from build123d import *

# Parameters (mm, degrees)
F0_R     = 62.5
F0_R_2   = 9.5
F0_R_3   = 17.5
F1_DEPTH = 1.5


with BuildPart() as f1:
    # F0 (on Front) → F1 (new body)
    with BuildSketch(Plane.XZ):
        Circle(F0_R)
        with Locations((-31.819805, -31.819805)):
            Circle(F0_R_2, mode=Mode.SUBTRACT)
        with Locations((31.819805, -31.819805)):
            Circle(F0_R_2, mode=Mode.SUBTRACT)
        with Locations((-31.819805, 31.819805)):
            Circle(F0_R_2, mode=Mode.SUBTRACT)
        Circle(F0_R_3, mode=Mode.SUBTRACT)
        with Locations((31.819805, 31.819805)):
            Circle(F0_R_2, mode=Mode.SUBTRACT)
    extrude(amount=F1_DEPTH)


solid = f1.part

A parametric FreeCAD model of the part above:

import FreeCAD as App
import Part
import Sketcher

V = App.Vector
Q = App.Units.Quantity

doc = App.newDocument("Part")
body = doc.addObject("PartDesign::Body", "Body")

# Sketch on XZ plane
sketch1 = body.newObject("Sketcher::SketchObject", "Sketch")
sketch1.AttachmentSupport = (doc.getObject("XZ_Plane"), [""])
sketch1.MapMode = "FlatFace"
sketch1.addGeometry([
    Part.Circle(V(0, 0, 0), V(0, 0, 1), 62),  # 0
    Part.Circle(V(-32, -32, 0), V(0, 0, 1), 10),  # 1
    Part.Circle(V(32, -32, 0), V(0, 0, 1), 10),  # 2
    Part.Circle(V(-32, 32, 0), V(0, 0, 1), 10),  # 3
    Part.Circle(V(0, 0, 0), V(0, 0, 1), 18),  # 4
    Part.Circle(V(32, 32, 0), V(0, 0, 1), 10),  # 5
], False)
sketch1.addConstraint([
    Sketcher.Constraint("Coincident", 0, 3, -1, 1),
    Sketcher.Constraint("Coincident", 4, 3, -1, 1),
    Sketcher.Constraint("Equal", 1, 2),
    Sketcher.Constraint("Equal", 2, 3),
    Sketcher.Constraint("Equal", 3, 5),
    Sketcher.Constraint("Symmetric", 2, 3, 3, 3, -1, 1),
    Sketcher.Constraint("Symmetric", 1, 3, 5, 3, -1, 1),
    Sketcher.Constraint("Symmetric", 1, 3, 2, 3, -2),
    Sketcher.Constraint("Diameter", 0, Q("125 mm")),
    Sketcher.Constraint("Diameter", 1, Q("19 mm")),
    Sketcher.Constraint("Diameter", 4, Q("35 mm")),
    Sketcher.Constraint("DistanceX", 1, 3, 2, 3, Q("63.63961 mm")),
    Sketcher.Constraint("DistanceY", 1, 3, 3, 3, Q("63.63961 mm")),
])
pad1 = body.newObject("PartDesign::Pad", "Pad")
pad1.Profile = sketch1
pad1.Length = 1.5

doc.recompute()
